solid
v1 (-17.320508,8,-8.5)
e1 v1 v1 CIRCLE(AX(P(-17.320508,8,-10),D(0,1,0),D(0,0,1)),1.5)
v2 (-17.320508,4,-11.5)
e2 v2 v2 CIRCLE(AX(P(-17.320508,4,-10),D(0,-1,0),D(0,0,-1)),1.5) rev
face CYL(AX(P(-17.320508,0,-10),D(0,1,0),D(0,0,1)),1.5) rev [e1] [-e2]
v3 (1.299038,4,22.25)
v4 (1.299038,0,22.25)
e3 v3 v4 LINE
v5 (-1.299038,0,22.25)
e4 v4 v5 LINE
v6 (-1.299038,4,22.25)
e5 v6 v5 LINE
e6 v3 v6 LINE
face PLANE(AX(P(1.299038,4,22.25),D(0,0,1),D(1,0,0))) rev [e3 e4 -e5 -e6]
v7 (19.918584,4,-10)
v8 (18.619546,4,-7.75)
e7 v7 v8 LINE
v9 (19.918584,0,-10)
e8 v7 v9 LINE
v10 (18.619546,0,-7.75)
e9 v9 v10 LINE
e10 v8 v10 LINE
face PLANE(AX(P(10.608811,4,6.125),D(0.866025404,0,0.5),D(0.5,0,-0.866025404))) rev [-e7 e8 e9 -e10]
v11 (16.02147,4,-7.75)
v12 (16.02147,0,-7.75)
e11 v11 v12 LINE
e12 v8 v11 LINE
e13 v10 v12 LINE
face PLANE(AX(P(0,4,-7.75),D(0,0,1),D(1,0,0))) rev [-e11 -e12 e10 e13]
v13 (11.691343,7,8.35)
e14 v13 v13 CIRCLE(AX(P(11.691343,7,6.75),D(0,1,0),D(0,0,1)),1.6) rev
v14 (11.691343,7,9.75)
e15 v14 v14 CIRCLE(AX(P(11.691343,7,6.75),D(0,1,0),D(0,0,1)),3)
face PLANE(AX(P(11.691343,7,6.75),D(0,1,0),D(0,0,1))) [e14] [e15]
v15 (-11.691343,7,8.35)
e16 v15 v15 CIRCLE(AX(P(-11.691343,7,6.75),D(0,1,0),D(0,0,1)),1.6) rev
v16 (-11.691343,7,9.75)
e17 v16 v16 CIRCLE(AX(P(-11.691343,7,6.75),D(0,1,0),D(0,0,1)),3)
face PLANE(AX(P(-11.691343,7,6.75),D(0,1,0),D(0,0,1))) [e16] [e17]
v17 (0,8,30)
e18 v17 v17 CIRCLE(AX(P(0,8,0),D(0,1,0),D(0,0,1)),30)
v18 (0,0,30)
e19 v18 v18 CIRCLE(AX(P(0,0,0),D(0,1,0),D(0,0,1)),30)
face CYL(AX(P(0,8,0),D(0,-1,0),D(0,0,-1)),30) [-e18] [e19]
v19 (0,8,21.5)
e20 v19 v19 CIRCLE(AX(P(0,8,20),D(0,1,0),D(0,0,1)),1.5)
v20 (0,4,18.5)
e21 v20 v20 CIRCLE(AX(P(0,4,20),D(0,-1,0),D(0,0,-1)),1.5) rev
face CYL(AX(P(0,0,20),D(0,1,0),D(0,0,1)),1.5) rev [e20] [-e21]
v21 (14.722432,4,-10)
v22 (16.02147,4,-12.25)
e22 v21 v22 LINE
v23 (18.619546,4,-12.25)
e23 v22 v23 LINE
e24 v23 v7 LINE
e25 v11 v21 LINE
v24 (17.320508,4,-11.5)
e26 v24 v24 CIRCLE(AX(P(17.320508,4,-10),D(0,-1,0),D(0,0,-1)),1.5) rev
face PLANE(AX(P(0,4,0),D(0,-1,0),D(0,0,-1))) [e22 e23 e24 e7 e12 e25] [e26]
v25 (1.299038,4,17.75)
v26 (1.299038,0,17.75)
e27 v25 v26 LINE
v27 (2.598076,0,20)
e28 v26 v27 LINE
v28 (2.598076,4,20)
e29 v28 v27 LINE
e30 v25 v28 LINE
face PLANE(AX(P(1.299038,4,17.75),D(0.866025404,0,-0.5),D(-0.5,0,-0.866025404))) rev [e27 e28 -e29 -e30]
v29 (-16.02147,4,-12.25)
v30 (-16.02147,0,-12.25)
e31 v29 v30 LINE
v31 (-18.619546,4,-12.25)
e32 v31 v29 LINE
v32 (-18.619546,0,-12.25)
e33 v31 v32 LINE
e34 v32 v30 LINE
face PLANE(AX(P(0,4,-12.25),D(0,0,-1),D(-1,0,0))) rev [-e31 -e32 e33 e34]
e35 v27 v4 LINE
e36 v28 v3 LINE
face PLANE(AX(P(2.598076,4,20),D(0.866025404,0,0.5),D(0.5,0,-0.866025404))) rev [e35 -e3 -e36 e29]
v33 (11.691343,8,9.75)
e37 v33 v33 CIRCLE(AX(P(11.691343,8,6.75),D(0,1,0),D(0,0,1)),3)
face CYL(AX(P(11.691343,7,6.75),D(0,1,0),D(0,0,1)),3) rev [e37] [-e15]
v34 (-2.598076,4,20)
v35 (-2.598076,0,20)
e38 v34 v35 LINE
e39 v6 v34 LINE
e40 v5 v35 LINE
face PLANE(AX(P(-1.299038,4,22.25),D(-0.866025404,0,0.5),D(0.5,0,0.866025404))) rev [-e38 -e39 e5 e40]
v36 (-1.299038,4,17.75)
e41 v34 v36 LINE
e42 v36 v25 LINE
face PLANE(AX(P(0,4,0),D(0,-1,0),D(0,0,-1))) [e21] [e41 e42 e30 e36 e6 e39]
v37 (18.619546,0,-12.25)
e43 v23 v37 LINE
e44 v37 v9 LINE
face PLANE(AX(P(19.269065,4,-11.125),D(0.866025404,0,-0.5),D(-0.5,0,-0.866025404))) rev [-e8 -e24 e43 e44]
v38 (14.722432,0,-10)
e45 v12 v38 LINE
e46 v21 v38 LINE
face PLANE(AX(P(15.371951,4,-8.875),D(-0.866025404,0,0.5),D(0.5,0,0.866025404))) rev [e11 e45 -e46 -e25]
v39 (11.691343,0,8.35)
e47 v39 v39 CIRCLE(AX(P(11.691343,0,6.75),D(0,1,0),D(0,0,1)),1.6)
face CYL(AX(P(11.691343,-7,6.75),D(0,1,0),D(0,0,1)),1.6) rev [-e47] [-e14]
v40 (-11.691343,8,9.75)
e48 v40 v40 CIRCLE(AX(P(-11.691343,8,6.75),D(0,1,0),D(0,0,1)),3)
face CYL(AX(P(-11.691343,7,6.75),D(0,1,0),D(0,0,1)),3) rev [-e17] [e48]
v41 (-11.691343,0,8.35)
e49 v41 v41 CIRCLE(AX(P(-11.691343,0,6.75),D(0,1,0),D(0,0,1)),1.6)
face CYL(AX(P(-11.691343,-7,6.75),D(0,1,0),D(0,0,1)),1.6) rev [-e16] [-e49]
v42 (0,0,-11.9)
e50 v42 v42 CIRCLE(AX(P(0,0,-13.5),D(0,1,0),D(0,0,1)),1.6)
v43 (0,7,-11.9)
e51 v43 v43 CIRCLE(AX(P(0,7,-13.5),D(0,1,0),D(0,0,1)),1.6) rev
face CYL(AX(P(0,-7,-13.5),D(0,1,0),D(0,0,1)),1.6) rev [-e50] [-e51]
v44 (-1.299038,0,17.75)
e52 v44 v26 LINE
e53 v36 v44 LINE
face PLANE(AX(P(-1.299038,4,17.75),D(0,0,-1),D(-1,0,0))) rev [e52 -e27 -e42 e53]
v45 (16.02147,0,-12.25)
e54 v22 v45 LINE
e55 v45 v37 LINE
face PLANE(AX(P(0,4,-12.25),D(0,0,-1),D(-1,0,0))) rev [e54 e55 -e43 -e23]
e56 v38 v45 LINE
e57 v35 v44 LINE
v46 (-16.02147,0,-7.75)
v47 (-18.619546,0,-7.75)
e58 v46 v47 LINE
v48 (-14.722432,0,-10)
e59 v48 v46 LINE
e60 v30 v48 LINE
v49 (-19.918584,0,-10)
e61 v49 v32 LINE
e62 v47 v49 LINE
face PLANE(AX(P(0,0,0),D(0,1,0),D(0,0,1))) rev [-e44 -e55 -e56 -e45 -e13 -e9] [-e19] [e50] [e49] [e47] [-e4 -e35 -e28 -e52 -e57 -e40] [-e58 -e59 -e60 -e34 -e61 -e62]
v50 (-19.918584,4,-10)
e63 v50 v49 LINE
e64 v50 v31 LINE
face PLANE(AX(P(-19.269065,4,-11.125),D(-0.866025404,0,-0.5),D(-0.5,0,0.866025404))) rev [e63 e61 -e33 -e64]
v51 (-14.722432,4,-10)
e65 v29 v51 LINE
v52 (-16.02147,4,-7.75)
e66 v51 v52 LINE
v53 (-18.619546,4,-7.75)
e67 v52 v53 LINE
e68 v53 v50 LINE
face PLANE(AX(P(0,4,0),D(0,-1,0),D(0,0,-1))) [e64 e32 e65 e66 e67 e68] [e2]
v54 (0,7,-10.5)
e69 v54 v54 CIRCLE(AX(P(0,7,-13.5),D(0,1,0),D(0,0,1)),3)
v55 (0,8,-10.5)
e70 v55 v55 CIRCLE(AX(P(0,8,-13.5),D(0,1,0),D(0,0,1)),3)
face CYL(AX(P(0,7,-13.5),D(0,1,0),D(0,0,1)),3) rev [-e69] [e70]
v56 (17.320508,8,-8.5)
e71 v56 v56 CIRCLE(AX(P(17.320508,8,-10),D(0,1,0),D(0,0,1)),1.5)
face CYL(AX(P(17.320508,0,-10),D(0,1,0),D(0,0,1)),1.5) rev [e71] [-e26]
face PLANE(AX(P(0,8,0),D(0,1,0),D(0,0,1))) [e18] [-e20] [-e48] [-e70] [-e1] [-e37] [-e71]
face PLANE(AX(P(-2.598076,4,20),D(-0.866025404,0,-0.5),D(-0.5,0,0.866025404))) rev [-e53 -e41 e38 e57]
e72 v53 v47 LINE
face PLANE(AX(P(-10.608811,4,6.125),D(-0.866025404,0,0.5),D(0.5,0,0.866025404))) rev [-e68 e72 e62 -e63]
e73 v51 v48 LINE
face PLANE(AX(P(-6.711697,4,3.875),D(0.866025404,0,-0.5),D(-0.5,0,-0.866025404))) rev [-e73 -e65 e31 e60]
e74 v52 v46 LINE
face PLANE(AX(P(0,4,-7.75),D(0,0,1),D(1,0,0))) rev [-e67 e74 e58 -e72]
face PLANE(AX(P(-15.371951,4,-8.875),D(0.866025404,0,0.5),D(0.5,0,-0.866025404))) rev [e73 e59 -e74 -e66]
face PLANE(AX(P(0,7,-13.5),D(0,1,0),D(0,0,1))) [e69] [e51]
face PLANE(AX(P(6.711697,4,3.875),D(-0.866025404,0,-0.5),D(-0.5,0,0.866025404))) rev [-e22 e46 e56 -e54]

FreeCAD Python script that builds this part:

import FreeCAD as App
import Part
import Sketcher

V = App.Vector
Q = App.Units.Quantity


def add_polygon(sketch, points):
    """Adds a closed chain of lines whose ends are joined by coincident constraints."""
    first, n = sketch.GeometryCount, len(points)
    for a, b in zip(points, points[1:] + points[:1]):
        sketch.addGeometry(Part.LineSegment(App.Vector(*a, 0), App.Vector(*b, 0)), False)
    for i in range(n):
        sketch.addConstraint(Sketcher.Constraint("Coincident", first + i, 2, first + (i + 1) % n, 1))

doc = App.newDocument("Part")
params = doc.addObject("Spreadsheet::Sheet", "Params")
for row, (alias, value) in enumerate([
    ("sketch1_diameter", "60 mm"),
    ("pad1_length", "8 mm"),
    ("sketch2_diameter", "3.2 mm"),
    ("pocket1_length", "15 mm"),
    ("sketch3_diameter", "3 mm"),
    ("pocket2_length", "8 mm"),
    ("sketch4_diameter", "6 mm"),
    ("pocket3_length", "1 mm"),
    ("sketch5_diameter", "3 mm"),
    ("pocket4_length", "4 mm"),
], start=1):
    params.set(f"A{row}", alias)
    params.set(f"B{row}", "=" + value)
    params.setAlias(f"B{row}", alias)

body = doc.addObject("PartDesign::Body", "Body")

# Sketch on XZ plane
sketch1 = doc.addObject("Sketcher::SketchObject", "Sketch")
body.addObject(sketch1)
sketch1.AttachmentSupport = (doc.XZ_Plane, [""])
sketch1.MapMode = "FlatFace"
sketch1.addGeometry(Part.Circle(V(0, 0, 0), V(0, 0, 1), 30), False)
sketch1.addConstraint([
    Sketcher.Constraint("Coincident", 0, 3, -1, 1),
    Sketcher.Constraint("Diameter", 0, 60.0),
])
sketch1.setExpression("Constraints[1]", "Params.sketch1_diameter")
pad1 = doc.addObject("PartDesign::Pad", "Pad")
body.addObject(pad1)
pad1.Profile = sketch1
pad1.setExpression("Length", "Params.pad1_length")
pad1.Reversed = True

# Sketch on XZ plane
sketch2 = doc.addObject("Sketcher::SketchObject", "Sketch001")
body.addObject(sketch2)
sketch2.AttachmentSupport = (doc.XZ_Plane, [""])
sketch2.MapMode = "FlatFace"
sketch2.AttachmentOffset = App.Placement(V(0, 0, -8), App.Rotation())
sketch2.addGeometry([
    Part.Circle(V(0, -13.5, 0), V(0, 0, 1), 1.6),
    Part.Circle(V(11.7, 6.8, 0), V(0, 0, 1), 1.6),
    Part.Circle(V(-11.7, 6.8, 0), V(0, 0, 1), 1.6),
], False)
sketch2.addConstraint([
    Sketcher.Constraint("Equal", 0, 1),
    Sketcher.Constraint("Equal", 1, 2),
    Sketcher.Constraint("Symmetric", 1, 3, 2, 3, -2),
    Sketcher.Constraint("PointOnObject", 0, 3, -2),
    Sketcher.Constraint("Diameter", 0, 3.2),
    Sketcher.Constraint("DistanceY", 0, 3, -1, 1, 13.5),
    Sketcher.Constraint("DistanceY", -1, 1, 1, 3, 6.75),
    Sketcher.Constraint("DistanceX", -1, 1, 1, 3, 11.691343),
])
sketch2.setExpression("Constraints[4]", "Params.sketch2_diameter")
pocket1 = doc.addObject("PartDesign::Pocket", "Pocket")
body.addObject(pocket1)
pocket1.Profile = sketch2
pocket1.setExpression("Length", "Params.pocket1_length")
pocket1.Reversed = True

# Sketch on XZ plane
sketch3 = doc.addObject("Sketcher::SketchObject", "Sketch002")
body.addObject(sketch3)
sketch3.AttachmentSupport = (doc.XZ_Plane, [""])
sketch3.MapMode = "FlatFace"
sketch3.AttachmentOffset = App.Placement(V(0, 0, -8), App.Rotation())
sketch3.addGeometry([
    Part.Circle(V(17.3, -10, 0), V(0, 0, 1), 1.5),
    Part.Circle(V(0, 20, 0), V(0, 0, 1), 1.5),
    Part.Circle(V(-17.3, -10, 0), V(0, 0, 1), 1.5),
], False)
sketch3.addConstraint([
    Sketcher.Constraint("Equal", 0, 1),
    Sketcher.Constraint("Equal", 1, 2),
    Sketcher.Constraint("Symmetric", 0, 3, 2, 3, -2),
    Sketcher.Constraint("PointOnObject", 1, 3, -2),
    Sketcher.Constraint("Diameter", 0, 3.0),
    Sketcher.Constraint("DistanceY", 0, 3, -1, 1, 10.0),
    Sketcher.Constraint("DistanceY", -1, 1, 1, 3, 20.0),
    Sketcher.Constraint("DistanceX", -1, 1, 0, 3, 17.320508),
])
sketch3.setExpression("Constraints[4]", "Params.sketch3_diameter")
pocket2 = doc.addObject("PartDesign::Pocket", "Pocket001")
body.addObject(pocket2)
pocket2.Profile = sketch3
pocket2.setExpression("Length", "Params.pocket2_length")
pocket2.Reversed = True

# Sketch on XZ plane
sketch4 = doc.addObject("Sketcher::SketchObject", "Sketch003")
body.addObject(sketch4)
sketch4.AttachmentSupport = (doc.XZ_Plane, [""])
sketch4.MapMode = "FlatFace"
sketch4.AttachmentOffset = App.Placement(V(0, 0, -8), App.Rotation())
sketch4.addGeometry([
    Part.Circle(V(0, -13.5, 0), V(0, 0, 1), 3),
    Part.Circle(V(11.7, 6.8, 0), V(0, 0, 1), 3),
    Part.Circle(V(-11.7, 6.8, 0), V(0, 0, 1), 3),
], False)
sketch4.addConstraint([
    Sketcher.Constraint("Equal", 0, 1),
    Sketcher.Constraint("Equal", 1, 2),
    Sketcher.Constraint("Symmetric", 1, 3, 2, 3, -2),
    Sketcher.Constraint("PointOnObject", 0, 3, -2),
    Sketcher.Constraint("Diameter", 0, 6.0),
    Sketcher.Constraint("DistanceY", 0, 3, -1, 1, 13.5),
    Sketcher.Constraint("DistanceY", -1, 1, 1, 3, 6.75),
    Sketcher.Constraint("DistanceX", -1, 1, 1, 3, 11.691343),
])
sketch4.setExpression("Constraints[4]", "Params.sketch4_diameter")
pocket3 = doc.addObject("PartDesign::Pocket", "Pocket002")
body.addObject(pocket3)
pocket3.Profile = sketch4
pocket3.setExpression("Length", "Params.pocket3_length")
pocket3.Reversed = True

# Sketch on XZ plane
sketch5 = doc.addObject("Sketcher::SketchObject", "Sketch004")
body.addObject(sketch5)
sketch5.AttachmentSupport = (doc.XZ_Plane, [""])
sketch5.MapMode = "FlatFace"
add_polygon(sketch5, [(-14.7, -10), (-16, -7.8), (-18.6, -7.8), (-19.9, -10), (-18.6, -12.2), (-16, -12.2)])  # lines 0-5
sketch5.addGeometry(Part.Circle(V(-17.3, -10, 0), V(0, 0, 1), 1.5), False)  # 6
add_polygon(sketch5, [(16, -7.8), (14.7, -10), (16, -12.2), (18.6, -12.2), (19.9, -10), (18.6, -7.8)])  # lines 7-12
sketch5.addGeometry(Part.Circle(V(17.3, -10, 0), V(0, 0, 1), 1.5), False)  # 13
add_polygon(sketch5, [(1.3, 22.2), (-1.3, 22.2), (-2.6, 20), (-1.3, 17.8), (1.3, 17.8), (2.6, 20)])  # lines 14-19
sketch5.addConstraint([
    Sketcher.Constraint("Horizontal", 1),
    Sketcher.Constraint("Horizontal", 4),
    Sketcher.Constraint("Horizontal", 9),
    Sketcher.Constraint("Horizontal", 12),
    Sketcher.Constraint("Horizontal", 14),
    Sketcher.Constraint("Horizontal", 17),
    Sketcher.Constraint("Equal", 6, 13),
    Sketcher.Constraint("Symmetric", 6, 3, 13, 3, -2),
    Sketcher.Constraint("Symmetric", 5, 2, 7, 2, -2),
    Sketcher.Constraint("Symmetric", 4, 2, 8, 2, -2),
    Sketcher.Constraint("Symmetric", 2, 2, 10, 2, -2),
    Sketcher.Constraint("Symmetric", 1, 2, 11, 2, -2),
    Sketcher.Constraint("Symmetric", 15, 2, 18, 2, -2),
    Sketcher.Constraint("Parallel", 0, 3),
    Sketcher.Constraint("Parallel", 2, 5),
    Sketcher.Constraint("Parallel", 5, 7),
    Sketcher.Constraint("Parallel", 3, 8),
    Sketcher.Constraint("Parallel", 7, 10),
    Sketcher.Constraint("Parallel", 10, 15),
    Sketcher.Constraint("Parallel", 11, 16),
    Sketcher.Constraint("Parallel", 15, 18),
    Sketcher.Constraint("Parallel", 16, 19),
    Sketcher.Constraint("Horizontal", 13, 3, 2, 2),
    Sketcher.Constraint("Horizontal", 2, 2, 5, 2),
    Sketcher.Constraint("Vertical", 1, 2, 3, 2),
    Sketcher.Constraint("Vertical", 14, 2, 16, 2),
    Sketcher.Constraint("Equal", 12, 14),
    Sketcher.Constraint("Equal", 11, 15),
    Sketcher.Constraint("Diameter", 6, 3.0),
    Sketcher.Constraint("Angle", 0, Q("120 deg")),
    Sketcher.Constraint("DistanceY", 6, 3, -1, 1, 10.0),
    Sketcher.Constraint("DistanceY", -1, 1, 15, 2, 20.0),
    Sketcher.Constraint("DistanceY", 3, 2, 1, 2, 4.5),
    Sketcher.Constraint("DistanceX", 0, 2, 7, 2, 30.743902),
    Sketcher.Constraint("DistanceX", 1, 2, 1, 1, 2.598076),
    Sketcher.Constraint("DistanceX", 6, 3, -1, 1, 17.320508),
])
sketch5.setExpression("Constraints[46]", "Params.sketch5_diameter")
pocket4 = doc.addObject("PartDesign::Pocket", "Pocket003")
body.addObject(pocket4)
pocket4.Profile = sketch5
pocket4.setExpression("Length", "Params.pocket4_length")

doc.recompute()
